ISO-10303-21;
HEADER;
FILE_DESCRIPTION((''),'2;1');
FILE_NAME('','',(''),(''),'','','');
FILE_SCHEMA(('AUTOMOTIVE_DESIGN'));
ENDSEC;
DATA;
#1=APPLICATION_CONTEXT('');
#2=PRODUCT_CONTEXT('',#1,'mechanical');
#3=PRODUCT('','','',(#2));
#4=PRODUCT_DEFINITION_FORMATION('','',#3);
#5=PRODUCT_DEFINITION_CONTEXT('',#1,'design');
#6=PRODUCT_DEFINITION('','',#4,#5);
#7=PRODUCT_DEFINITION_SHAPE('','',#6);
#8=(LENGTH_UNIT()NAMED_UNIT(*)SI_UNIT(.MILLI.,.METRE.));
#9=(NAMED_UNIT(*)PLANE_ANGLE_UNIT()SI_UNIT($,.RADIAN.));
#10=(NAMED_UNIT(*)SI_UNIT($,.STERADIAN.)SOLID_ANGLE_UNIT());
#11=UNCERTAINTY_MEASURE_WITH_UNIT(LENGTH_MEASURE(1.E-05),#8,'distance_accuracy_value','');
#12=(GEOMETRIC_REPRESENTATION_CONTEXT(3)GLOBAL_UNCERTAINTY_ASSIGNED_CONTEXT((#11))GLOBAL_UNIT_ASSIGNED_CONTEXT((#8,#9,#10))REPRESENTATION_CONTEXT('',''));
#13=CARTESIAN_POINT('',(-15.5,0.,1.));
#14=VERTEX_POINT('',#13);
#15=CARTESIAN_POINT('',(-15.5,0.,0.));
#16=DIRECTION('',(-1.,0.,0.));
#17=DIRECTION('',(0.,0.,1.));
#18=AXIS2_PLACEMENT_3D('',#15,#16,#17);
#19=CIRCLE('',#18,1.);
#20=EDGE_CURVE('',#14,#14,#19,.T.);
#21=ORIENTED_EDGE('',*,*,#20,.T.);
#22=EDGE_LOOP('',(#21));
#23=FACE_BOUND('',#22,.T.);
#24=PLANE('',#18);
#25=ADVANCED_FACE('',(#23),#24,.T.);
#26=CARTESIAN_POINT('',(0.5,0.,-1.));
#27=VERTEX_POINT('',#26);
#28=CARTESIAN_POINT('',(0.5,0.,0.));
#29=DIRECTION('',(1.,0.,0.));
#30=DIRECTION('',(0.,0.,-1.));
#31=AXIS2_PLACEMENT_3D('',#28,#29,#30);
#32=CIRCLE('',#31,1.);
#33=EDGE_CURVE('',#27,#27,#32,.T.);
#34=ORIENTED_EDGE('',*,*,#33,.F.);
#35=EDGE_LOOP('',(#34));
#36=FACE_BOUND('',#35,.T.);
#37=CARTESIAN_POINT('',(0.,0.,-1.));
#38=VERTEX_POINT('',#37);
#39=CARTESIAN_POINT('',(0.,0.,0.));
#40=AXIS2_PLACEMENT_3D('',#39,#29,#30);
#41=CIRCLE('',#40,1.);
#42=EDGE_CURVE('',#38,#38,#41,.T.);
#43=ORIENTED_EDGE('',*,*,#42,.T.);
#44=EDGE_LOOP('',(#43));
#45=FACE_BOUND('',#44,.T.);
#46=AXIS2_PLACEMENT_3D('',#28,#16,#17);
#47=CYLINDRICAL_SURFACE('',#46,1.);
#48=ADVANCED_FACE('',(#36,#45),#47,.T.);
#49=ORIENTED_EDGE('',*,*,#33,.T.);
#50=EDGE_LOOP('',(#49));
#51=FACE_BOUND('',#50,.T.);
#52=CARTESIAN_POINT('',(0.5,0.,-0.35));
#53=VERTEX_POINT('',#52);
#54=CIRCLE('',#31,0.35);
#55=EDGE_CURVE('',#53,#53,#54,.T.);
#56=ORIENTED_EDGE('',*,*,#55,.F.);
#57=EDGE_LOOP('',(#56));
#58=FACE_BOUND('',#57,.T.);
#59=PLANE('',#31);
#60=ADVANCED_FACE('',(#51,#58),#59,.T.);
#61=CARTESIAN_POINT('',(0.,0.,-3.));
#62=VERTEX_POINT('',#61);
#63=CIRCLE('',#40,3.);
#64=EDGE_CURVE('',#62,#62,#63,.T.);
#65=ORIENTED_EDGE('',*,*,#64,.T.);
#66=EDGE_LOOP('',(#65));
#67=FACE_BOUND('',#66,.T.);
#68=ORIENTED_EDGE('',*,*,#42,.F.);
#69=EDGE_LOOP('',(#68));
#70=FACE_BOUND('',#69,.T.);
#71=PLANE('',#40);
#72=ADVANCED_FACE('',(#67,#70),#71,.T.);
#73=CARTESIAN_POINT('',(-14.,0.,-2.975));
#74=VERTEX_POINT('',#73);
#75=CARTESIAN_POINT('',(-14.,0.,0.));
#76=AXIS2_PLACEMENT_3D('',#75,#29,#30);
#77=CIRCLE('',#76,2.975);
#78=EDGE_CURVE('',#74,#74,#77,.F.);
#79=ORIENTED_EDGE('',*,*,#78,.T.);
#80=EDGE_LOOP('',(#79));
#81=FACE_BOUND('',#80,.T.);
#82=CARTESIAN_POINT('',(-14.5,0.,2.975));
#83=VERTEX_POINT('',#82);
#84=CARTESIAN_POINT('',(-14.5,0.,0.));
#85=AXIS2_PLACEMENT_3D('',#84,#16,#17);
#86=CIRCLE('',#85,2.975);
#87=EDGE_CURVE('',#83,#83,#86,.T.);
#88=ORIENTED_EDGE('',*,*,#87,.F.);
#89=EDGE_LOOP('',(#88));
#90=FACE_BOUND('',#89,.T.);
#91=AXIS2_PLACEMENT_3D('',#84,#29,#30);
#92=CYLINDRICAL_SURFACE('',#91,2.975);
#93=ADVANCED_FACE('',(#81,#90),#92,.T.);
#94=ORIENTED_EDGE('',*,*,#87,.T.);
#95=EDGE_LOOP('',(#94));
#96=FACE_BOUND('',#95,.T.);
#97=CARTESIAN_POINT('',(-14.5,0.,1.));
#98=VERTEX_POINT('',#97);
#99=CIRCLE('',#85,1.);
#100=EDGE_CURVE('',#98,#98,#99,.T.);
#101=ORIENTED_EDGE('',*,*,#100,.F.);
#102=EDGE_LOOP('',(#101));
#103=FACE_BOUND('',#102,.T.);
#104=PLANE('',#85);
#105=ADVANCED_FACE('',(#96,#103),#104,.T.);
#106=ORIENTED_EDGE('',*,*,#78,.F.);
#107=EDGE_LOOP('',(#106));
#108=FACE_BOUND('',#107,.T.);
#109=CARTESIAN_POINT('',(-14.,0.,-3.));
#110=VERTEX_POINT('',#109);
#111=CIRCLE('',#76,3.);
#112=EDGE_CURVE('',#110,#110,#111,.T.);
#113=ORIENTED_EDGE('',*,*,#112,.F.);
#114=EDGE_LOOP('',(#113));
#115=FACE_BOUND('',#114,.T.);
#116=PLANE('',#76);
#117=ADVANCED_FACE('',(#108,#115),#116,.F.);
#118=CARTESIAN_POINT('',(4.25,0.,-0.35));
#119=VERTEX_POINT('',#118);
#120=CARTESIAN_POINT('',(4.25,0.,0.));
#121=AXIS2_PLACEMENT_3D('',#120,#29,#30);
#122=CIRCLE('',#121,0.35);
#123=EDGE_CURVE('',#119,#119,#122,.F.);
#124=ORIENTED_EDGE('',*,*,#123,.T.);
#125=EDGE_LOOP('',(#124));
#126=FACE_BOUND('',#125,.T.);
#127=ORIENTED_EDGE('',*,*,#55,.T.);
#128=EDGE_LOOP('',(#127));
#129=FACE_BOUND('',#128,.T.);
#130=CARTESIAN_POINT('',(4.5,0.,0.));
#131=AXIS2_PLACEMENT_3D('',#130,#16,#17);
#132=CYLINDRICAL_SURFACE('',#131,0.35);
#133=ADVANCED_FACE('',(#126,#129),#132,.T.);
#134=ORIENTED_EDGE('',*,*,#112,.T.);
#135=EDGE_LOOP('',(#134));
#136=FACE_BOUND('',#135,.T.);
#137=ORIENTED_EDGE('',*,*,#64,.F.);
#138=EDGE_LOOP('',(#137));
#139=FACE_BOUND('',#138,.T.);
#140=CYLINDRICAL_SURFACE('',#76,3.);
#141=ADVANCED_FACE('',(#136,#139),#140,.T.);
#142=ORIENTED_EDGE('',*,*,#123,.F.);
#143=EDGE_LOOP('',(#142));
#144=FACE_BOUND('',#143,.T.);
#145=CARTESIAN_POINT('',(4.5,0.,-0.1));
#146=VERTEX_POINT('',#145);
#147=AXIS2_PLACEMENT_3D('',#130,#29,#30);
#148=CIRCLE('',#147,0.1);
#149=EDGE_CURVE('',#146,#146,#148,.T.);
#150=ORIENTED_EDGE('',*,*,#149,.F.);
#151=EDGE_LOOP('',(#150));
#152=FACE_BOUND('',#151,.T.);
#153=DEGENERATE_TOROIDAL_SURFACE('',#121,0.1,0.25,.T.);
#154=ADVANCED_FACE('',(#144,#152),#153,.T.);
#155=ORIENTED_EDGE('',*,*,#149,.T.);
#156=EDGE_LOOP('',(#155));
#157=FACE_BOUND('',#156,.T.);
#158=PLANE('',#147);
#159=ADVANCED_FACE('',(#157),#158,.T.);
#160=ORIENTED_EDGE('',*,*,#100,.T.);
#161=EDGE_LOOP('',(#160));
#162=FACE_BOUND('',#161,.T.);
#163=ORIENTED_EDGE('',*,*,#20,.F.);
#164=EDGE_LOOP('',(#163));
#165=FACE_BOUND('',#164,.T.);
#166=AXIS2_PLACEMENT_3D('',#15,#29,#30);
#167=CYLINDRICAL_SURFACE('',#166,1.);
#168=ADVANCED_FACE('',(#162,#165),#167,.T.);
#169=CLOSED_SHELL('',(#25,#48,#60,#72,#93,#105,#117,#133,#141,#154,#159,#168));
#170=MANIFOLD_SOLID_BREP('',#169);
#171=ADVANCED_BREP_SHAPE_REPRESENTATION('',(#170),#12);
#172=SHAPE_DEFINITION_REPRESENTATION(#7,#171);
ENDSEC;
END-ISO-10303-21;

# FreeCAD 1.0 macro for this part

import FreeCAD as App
import Part
import Sketcher


def edges_at(feature, points):
    """Names of the edges that pass closest to the given points."""
    edges = feature.Shape.Edges
    near = lambda p: min(range(len(edges)), key=lambda i: edges[i].distToShape(Part.Vertex(*p))[0])
    return sorted({f"Edge{near(p) + 1}" for p in points})

doc = App.newDocument("Part")
params = doc.addObject("Spreadsheet::Sheet", "Params")
for row, (alias, value) in enumerate([
    ("sketch1_diameter", "6 mm"),
    ("pad1_length", "14 mm"),
    ("sketch2_diameter", "2 mm"),
    ("pad2_length", "0.5 mm"),
    ("sketch3_diameter", "0.7 mm"),
    ("pad3_length", "4 mm"),
    ("fillet_radius", "0.25 mm"),
    ("sketch4_diameter", "5.95 mm"),
    ("pad4_length", "0.5 mm"),
    ("sketch5_diameter", "2 mm"),
    ("pad5_length", "1 mm"),
], start=1):
    params.set(f"A{row}", alias)
    params.set(f"B{row}", "=" + value)
    params.setAlias(f"B{row}", alias)

body = doc.addObject("PartDesign::Body", "Body")

# Sketch on YZ plane
sketch1 = body.newObject("Sketcher::SketchObject", "Sketch")
sketch1.AttachmentSupport = (doc.getObject("YZ_Plane"), [""])
sketch1.MapMode = "FlatFace"
sketch1.addGeometry(Part.Circle(App.Vector(0, 0, 0), App.Vector(0, 0, 1), 3), False)
sketch1.addConstraint([
    Sketcher.Constraint("Coincident", 0, 3, -1, 1),
    Sketcher.Constraint("Diameter", 0, 6.0),
])
sketch1.setExpression("Constraints[1]", "Params.sketch1_diameter")
pad1 = body.newObject("PartDesign::Pad", "Pad")
pad1.Profile = sketch1
pad1.setExpression("Length", "Params.pad1_length")
pad1.Reversed = True

# Sketch on YZ plane
sketch2 = body.newObject("Sketcher::SketchObject", "Sketch001")
sketch2.AttachmentSupport = (doc.getObject("YZ_Plane"), [""])
sketch2.MapMode = "FlatFace"
sketch2.addGeometry(Part.Circle(App.Vector(0, 0, 0), App.Vector(0, 0, 1), 1), False)
sketch2.addConstraint([
    Sketcher.Constraint("Coincident", 0, 3, -1, 1),
    Sketcher.Constraint("Diameter", 0, 2.0),
])
sketch2.setExpression("Constraints[1]", "Params.sketch2_diameter")
pad2 = body.newObject("PartDesign::Pad", "Pad001")
pad2.Profile = sketch2
pad2.setExpression("Length", "Params.pad2_length")

# Sketch on YZ plane
sketch3 = body.newObject("Sketcher::SketchObject", "Sketch002")
sketch3.AttachmentSupport = (doc.getObject("YZ_Plane"), [""])
sketch3.MapMode = "FlatFace"
sketch3.AttachmentOffset = App.Placement(App.Vector(0, 0, 0.5), App.Rotation())
sketch3.addGeometry(Part.Circle(App.Vector(0, 0, 0), App.Vector(0, 0, 1), 0.35), False)
sketch3.addConstraint([
    Sketcher.Constraint("Coincident", 0, 3, -1, 1),
    Sketcher.Constraint("Diameter", 0, 0.7),
])
sketch3.setExpression("Constraints[1]", "Params.sketch3_diameter")
pad3 = body.newObject("PartDesign::Pad", "Pad002")
pad3.Profile = sketch3
pad3.setExpression("Length", "Params.pad3_length")
doc.recompute()

fillet = body.newObject("PartDesign::Fillet", "Fillet")
fillet.Base = (pad3, edges_at(pad3, [(4.5, 0, 0.35)]))
fillet.setExpression("Radius", "Params.fillet_radius")

# Sketch on YZ plane
sketch4 = body.newObject("Sketcher::SketchObject", "Sketch003")
sketch4.AttachmentSupport = (doc.getObject("YZ_Plane"), [""])
sketch4.MapMode = "FlatFace"
sketch4.AttachmentOffset = App.Placement(App.Vector(0, 0, -14), App.Rotation())
sketch4.addGeometry(Part.Circle(App.Vector(0, 0, 0), App.Vector(0, 0, 1), 3), False)
sketch4.addConstraint([
    Sketcher.Constraint("Coincident", 0, 3, -1, 1),
    Sketcher.Constraint("Diameter", 0, 5.95),
])
sketch4.setExpression("Constraints[1]", "Params.sketch4_diameter")
pad4 = body.newObject("PartDesign::Pad", "Pad003")
pad4.Profile = sketch4
pad4.setExpression("Length", "Params.pad4_length")
pad4.Reversed = True

# Sketch on YZ plane
sketch5 = body.newObject("Sketcher::SketchObject", "Sketch004")
sketch5.AttachmentSupport = (doc.getObject("YZ_Plane"), [""])
sketch5.MapMode = "FlatFace"
sketch5.AttachmentOffset = App.Placement(App.Vector(0, 0, -15.5), App.Rotation())
sketch5.addGeometry(Part.Circle(App.Vector(0, 0, 0), App.Vector(0, 0, 1), 1), False)
sketch5.addConstraint([
    Sketcher.Constraint("Coincident", 0, 3, -1, 1),
    Sketcher.Constraint("Diameter", 0, 2.0),
])
sketch5.setExpression("Constraints[1]", "Params.sketch5_diameter")
pad5 = body.newObject("PartDesign::Pad", "Pad004")
pad5.Profile = sketch5
pad5.setExpression("Length", "Params.pad5_length")

doc.recompute()
